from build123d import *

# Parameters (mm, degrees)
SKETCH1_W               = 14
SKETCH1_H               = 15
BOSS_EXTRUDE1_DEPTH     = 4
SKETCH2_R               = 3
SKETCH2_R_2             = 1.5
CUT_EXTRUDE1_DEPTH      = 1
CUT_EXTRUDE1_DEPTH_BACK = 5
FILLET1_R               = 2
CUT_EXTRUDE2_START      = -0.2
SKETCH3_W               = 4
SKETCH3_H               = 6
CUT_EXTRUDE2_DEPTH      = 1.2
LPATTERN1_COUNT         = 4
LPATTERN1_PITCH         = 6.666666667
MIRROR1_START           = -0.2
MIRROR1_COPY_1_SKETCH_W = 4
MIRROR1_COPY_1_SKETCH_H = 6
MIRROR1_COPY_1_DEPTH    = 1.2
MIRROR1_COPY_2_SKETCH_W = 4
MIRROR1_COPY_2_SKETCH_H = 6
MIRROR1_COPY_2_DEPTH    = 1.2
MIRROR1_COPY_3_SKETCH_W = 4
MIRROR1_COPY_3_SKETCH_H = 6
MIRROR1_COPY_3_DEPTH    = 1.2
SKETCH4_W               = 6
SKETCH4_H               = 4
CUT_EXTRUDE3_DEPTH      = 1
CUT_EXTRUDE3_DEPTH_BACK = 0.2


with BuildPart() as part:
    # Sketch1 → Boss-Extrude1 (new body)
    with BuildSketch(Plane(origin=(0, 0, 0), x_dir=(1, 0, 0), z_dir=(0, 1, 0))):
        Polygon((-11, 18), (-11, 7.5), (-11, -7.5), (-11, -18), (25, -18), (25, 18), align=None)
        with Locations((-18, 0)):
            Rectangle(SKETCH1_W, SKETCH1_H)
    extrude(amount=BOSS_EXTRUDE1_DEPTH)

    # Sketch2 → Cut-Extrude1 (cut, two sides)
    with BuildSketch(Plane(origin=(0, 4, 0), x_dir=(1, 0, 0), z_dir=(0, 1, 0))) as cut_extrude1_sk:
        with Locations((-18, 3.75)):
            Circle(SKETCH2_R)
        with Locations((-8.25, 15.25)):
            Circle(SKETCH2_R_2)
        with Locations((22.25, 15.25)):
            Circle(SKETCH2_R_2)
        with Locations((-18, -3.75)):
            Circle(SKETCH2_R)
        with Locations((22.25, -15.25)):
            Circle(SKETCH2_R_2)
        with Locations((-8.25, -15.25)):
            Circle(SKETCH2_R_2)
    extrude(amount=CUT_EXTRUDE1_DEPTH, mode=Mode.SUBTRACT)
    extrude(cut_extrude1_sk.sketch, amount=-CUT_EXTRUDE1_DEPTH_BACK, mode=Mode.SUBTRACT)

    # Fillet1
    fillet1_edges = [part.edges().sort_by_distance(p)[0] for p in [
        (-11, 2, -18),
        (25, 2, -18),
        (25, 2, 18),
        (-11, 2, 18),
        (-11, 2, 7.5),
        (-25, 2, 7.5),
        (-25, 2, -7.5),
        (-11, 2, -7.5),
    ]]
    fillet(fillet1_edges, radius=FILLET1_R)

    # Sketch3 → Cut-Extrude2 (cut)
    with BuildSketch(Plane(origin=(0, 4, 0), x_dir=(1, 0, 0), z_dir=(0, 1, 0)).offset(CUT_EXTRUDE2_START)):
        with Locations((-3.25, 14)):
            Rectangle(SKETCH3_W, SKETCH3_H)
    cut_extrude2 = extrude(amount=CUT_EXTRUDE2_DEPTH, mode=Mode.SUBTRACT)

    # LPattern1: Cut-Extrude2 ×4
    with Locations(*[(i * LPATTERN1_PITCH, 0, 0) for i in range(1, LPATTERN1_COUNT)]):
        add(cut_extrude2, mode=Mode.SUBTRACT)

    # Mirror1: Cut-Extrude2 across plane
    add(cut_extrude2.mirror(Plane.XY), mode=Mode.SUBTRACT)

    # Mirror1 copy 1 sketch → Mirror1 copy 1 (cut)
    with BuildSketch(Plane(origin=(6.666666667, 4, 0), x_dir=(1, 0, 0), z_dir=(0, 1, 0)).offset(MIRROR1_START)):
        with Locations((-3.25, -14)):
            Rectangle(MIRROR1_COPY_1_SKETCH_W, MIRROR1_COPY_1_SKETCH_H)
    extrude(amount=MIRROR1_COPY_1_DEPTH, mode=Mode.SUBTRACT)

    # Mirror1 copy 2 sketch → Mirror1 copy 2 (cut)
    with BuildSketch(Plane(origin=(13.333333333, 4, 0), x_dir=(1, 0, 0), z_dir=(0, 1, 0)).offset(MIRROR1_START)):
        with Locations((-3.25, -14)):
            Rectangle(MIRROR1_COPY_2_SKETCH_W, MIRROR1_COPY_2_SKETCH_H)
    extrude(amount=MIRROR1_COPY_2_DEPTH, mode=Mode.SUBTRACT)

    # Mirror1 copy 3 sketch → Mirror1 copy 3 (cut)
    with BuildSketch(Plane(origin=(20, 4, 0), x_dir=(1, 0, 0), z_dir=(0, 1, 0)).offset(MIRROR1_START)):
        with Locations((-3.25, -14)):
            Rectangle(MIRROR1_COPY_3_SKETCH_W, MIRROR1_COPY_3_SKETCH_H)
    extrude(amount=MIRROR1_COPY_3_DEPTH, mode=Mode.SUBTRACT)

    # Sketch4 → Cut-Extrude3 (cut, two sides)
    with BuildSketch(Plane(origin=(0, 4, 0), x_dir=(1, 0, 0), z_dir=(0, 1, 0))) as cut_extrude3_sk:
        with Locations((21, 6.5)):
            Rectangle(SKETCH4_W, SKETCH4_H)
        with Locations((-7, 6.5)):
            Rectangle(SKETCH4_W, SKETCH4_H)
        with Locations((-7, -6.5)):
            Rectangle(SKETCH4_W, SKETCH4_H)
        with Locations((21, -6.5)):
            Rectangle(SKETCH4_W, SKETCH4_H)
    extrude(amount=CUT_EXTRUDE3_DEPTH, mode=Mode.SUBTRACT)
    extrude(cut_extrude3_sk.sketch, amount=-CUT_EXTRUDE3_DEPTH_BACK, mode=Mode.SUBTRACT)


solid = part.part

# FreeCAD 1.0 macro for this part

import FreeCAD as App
import Part
import Sketcher
Q = App.Units.Quantity


def edges_at(feature, points):
    """Names of the edges that pass closest to the given points."""
    edges = feature.Shape.Edges
    near = lambda p: min(range(len(edges)), key=lambda i: edges[i].distToShape(Part.Vertex(*p))[0])
    return sorted({f"Edge{near(p) + 1}" for p in points})


def add_polygon(sketch, points):
    """Adds a closed chain of lines whose ends are joined by coincident constraints."""
    first, n = sketch.GeometryCount, len(points)
    for a, b in zip(points, points[1:] + points[:1]):
        sketch.addGeometry(Part.LineSegment(App.Vector(*a, 0), App.Vector(*b, 0)), False)
    for i in range(n):
        sketch.addConstraint(Sketcher.Constraint("Coincident", first + i, 2, first + (i + 1) % n, 1))

doc = App.newDocument("Part")
body = doc.addObject("PartDesign::Body", "Body")

sketch1 = body.newObject("Sketcher::SketchObject", "Sketch")
sketch1.AttachmentSupport = (doc.getObject("XZ_Plane"), [""])
sketch1.MapMode = "FlatFace"
add_polygon(sketch1, [(-11, -18), (-11, -8), (-25, -8), (-25, 8), (-11, 8), (-11, 18), (25, 18), (25, -18)])
sketch1.addConstraint(Sketcher.Constraint("Vertical", 0))
sketch1.addConstraint(Sketcher.Constraint("Horizontal", 1))
sketch1.addConstraint(Sketcher.Constraint("Vertical", 2))
sketch1.addConstraint(Sketcher.Constraint("Horizontal", 3))
sketch1.addConstraint(Sketcher.Constraint("Vertical", 4))
sketch1.addConstraint(Sketcher.Constraint("Horizontal", 5))
sketch1.addConstraint(Sketcher.Constraint("Vertical", 6))
sketch1.addConstraint(Sketcher.Constraint("Horizontal", 7))
sketch1.addConstraint(Sketcher.Constraint("Symmetric", 0, 2, 3, 2, -1))
sketch1.addConstraint(Sketcher.Constraint("Equal", 0, 4))
sketch1.addConstraint(Sketcher.Constraint("Equal", 7, 6))
sketch1.addConstraint(Sketcher.Constraint("DistanceX", 1, 2, 1, 1, Q("14 mm")))
sketch1.addConstraint(Sketcher.Constraint("DistanceX", 5, 1, 5, 2, Q("36 mm")))
sketch1.addConstraint(Sketcher.Constraint("DistanceY", 2, 1, 2, 2, Q("15 mm")))
sketch1.addConstraint(Sketcher.Constraint("DistanceX", 0, 2, -1, 1, Q("11 mm")))
pad1 = body.newObject("PartDesign::Pad", "Pad")
pad1.Profile = sketch1
pad1.Length = 4
pad1.Reversed = True

sketch2 = body.newObject("Sketcher::SketchObject", "Sketch001")
sketch2.AttachmentSupport = (doc.getObject("XZ_Plane"), [""])
sketch2.MapMode = "FlatFace"
sketch2.AttachmentOffset = App.Placement(App.Vector(0, 0, -4), App.Rotation())
sketch2.addGeometry(Part.Circle(App.Vector(-18, -3.8, 0), App.Vector(0, 0, 1), 3), False)
sketch2.addGeometry(Part.Circle(App.Vector(-8.2, -15.2, 0), App.Vector(0, 0, 1), 1.5), False)
sketch2.addGeometry(Part.Circle(App.Vector(22.2, -15.2, 0), App.Vector(0, 0, 1), 1.5), False)
sketch2.addGeometry(Part.Circle(App.Vector(-18, 3.8, 0), App.Vector(0, 0, 1), 3), False)
sketch2.addGeometry(Part.Circle(App.Vector(22.2, 15.2, 0), App.Vector(0, 0, 1), 1.5), False)
sketch2.addGeometry(Part.Circle(App.Vector(-8.2, 15.2, 0), App.Vector(0, 0, 1), 1.5), False)
sketch2.addConstraint(Sketcher.Constraint("Equal", 1, 2))
sketch2.addConstraint(Sketcher.Constraint("Equal", 0, 3))
sketch2.addConstraint(Sketcher.Constraint("Equal", 2, 4))
sketch2.addConstraint(Sketcher.Constraint("Equal", 4, 5))
sketch2.addConstraint(Sketcher.Constraint("Symmetric", 0, 3, 3, 3, -1))
sketch2.addConstraint(Sketcher.Constraint("Symmetric", 2, 3, 4, 3, -1))
sketch2.addConstraint(Sketcher.Constraint("Symmetric", 1, 3, 5, 3, -1))
sketch2.addConstraint(Sketcher.Constraint("Horizontal", 1, 3, 2, 3))
sketch2.addConstraint(Sketcher.Constraint("Diameter", 0, Q("6 mm")))
sketch2.addConstraint(Sketcher.Constraint("Diameter", 1, Q("3 mm")))
sketch2.addConstraint(Sketcher.Constraint("DistanceX", 0, 3, -1, 1, Q("18 mm")))
sketch2.addConstraint(Sketcher.Constraint("DistanceY", 1, 3, 3, 3, Q("19 mm")))
sketch2.addConstraint(Sketcher.Constraint("DistanceY", 1, 3, 0, 3, Q("11.5 mm")))
sketch2.addConstraint(Sketcher.Constraint("DistanceX", 1, 3, 2, 3, Q("30.5 mm")))
sketch2.addConstraint(Sketcher.Constraint("DistanceX", 1, 3, -1, 1, Q("8.25 mm")))
pocket1 = body.newObject("PartDesign::Pocket", "Pocket")
pocket1.Profile = sketch2
pocket1.Type = "ThroughAll"
pocket1.Midplane = True
doc.recompute()

fillet = body.newObject("PartDesign::Fillet", "Fillet")
fillet.Base = (pocket1, edges_at(pocket1, [
    (-11, 2, -18),
    (25, 2, -18),
    (25, 2, 18),
    (-11, 2, 18),
    (-11, 2, 7.5),
    (-25, 2, 7.5),
    (-25, 2, -7.5),
    (-11, 2, -7.5),
]))
fillet.Radius = 2

sketch3 = body.newObject("Sketcher::SketchObject", "Sketch002")
sketch3.AttachmentSupport = (doc.getObject("XZ_Plane"), [""])
sketch3.MapMode = "FlatFace"
sketch3.AttachmentOffset = App.Placement(App.Vector(0, 0, -3.8), App.Rotation())
add_polygon(sketch3, [(-5.2, -17), (-5.2, -11), (-1.2, -11), (-1.2, -17)])
sketch3.addConstraint(Sketcher.Constraint("Vertical", 0))
sketch3.addConstraint(Sketcher.Constraint("Horizontal", 1))
sketch3.addConstraint(Sketcher.Constraint("Vertical", 2))
sketch3.addConstraint(Sketcher.Constraint("Horizontal", 3))
sketch3.addConstraint(Sketcher.Constraint("DistanceX", 1, 1, 1, 2, Q("4 mm")))
sketch3.addConstraint(Sketcher.Constraint("DistanceY", 0, 1, 0, 2, Q("6 mm")))
sketch3.addConstraint(Sketcher.Constraint("DistanceY", 0, 2, -1, 1, Q("11 mm")))
sketch3.addConstraint(Sketcher.Constraint("DistanceX", 0, 2, -1, 1, Q("5.25 mm")))
pocket2 = body.newObject("PartDesign::Pocket", "Pocket001")
pocket2.Profile = sketch3
pocket2.Length = 1.2
doc.recompute()

linearpattern = body.newObject("PartDesign::LinearPattern", "LinearPattern")
linearpattern.Originals = [pocket2]
linearpattern.Direction = (doc.getObject("X_Axis"), [""])
linearpattern.Mode = "offset"
linearpattern.Offset = 6.666667
linearpattern.Occurrences = 4
body.Tip = linearpattern
doc.recompute()

mirrored = body.newObject("PartDesign::Mirrored", "Mirrored")
mirrored.Originals = [pocket2]
mirrored.MirrorPlane = (doc.getObject("XY_Plane"), [""])
body.Tip = mirrored

sketch4 = body.newObject("Sketcher::SketchObject", "Sketch003")
sketch4.AttachmentSupport = (doc.getObject("XZ_Plane"), [""])
sketch4.MapMode = "FlatFace"
sketch4.AttachmentOffset = App.Placement(App.Vector(0, 0, -3.8), App.Rotation())
add_polygon(sketch4, [(1.4, 11), (1.4, 17), (5.4, 17), (5.4, 11)])
sketch4.addConstraint(Sketcher.Constraint("Vertical", 0))
sketch4.addConstraint(Sketcher.Constraint("Horizontal", 1))
sketch4.addConstraint(Sketcher.Constraint("Vertical", 2))
sketch4.addConstraint(Sketcher.Constraint("Horizontal", 3))
sketch4.addConstraint(Sketcher.Constraint("DistanceX", 1, 1, 1, 2, Q("4 mm")))
sketch4.addConstraint(Sketcher.Constraint("DistanceY", 0, 1, 0, 2, Q("6 mm")))
sketch4.addConstraint(Sketcher.Constraint("DistanceY", -1, 1, 0, 2, Q("17 mm")))
sketch4.addConstraint(Sketcher.Constraint("DistanceX", -1, 1, 0, 2, Q("1.416667 mm")))
pocket3 = body.newObject("PartDesign::Pocket", "Pocket002")
pocket3.Profile = sketch4
pocket3.Length = 1.2

sketch5 = body.newObject("Sketcher::SketchObject", "Sketch004")
sketch5.AttachmentSupport = (doc.getObject("XZ_Plane"), [""])
sketch5.MapMode = "FlatFace"
sketch5.AttachmentOffset = App.Placement(App.Vector(0, 0, -3.8), App.Rotation())
add_polygon(sketch5, [(8.1, 11), (8.1, 17), (12.1, 17), (12.1, 11)])
sketch5.addConstraint(Sketcher.Constraint("Vertical", 0))
sketch5.addConstraint(Sketcher.Constraint("Horizontal", 1))
sketch5.addConstraint(Sketcher.Constraint("Vertical", 2))
sketch5.addConstraint(Sketcher.Constraint("Horizontal", 3))
sketch5.addConstraint(Sketcher.Constraint("DistanceX", 1, 1, 1, 2, Q("4 mm")))
sketch5.addConstraint(Sketcher.Constraint("DistanceY", 0, 1, 0, 2, Q("6 mm")))
sketch5.addConstraint(Sketcher.Constraint("DistanceY", -1, 1, 0, 2, Q("17 mm")))
sketch5.addConstraint(Sketcher.Constraint("DistanceX", -1, 1, 0, 2, Q("8.083333 mm")))
pocket4 = body.newObject("PartDesign::Pocket", "Pocket003")
pocket4.Profile = sketch5
pocket4.Length = 1.2

sketch6 = body.newObject("Sketcher::SketchObject", "Sketch005")
sketch6.AttachmentSupport = (doc.getObject("XZ_Plane"), [""])
sketch6.MapMode = "FlatFace"
sketch6.AttachmentOffset = App.Placement(App.Vector(0, 0, -3.8), App.Rotation())
add_polygon(sketch6, [(14.8, 11), (14.8, 17), (18.8, 17), (18.8, 11)])
sketch6.addConstraint(Sketcher.Constraint("Vertical", 0))
sketch6.addConstraint(Sketcher.Constraint("Horizontal", 1))
sketch6.addConstraint(Sketcher.Constraint("Vertical", 2))
sketch6.addConstraint(Sketcher.Constraint("Horizontal", 3))
sketch6.addConstraint(Sketcher.Constraint("DistanceX", 1, 1, 1, 2, Q("4 mm")))
sketch6.addConstraint(Sketcher.Constraint("DistanceY", 0, 1, 0, 2, Q("6 mm")))
sketch6.addConstraint(Sketcher.Constraint("DistanceY", -1, 1, 0, 2, Q("17 mm")))
sketch6.addConstraint(Sketcher.Constraint("DistanceX", -1, 1, 0, 2, Q("14.75 mm")))
pocket5 = body.newObject("PartDesign::Pocket", "Pocket004")
pocket5.Profile = sketch6
pocket5.Length = 1.2

sketch7 = body.newObject("Sketcher::SketchObject", "Sketch006")
sketch7.AttachmentSupport = (doc.getObject("XZ_Plane"), [""])
sketch7.MapMode = "FlatFace"
sketch7.AttachmentOffset = App.Placement(App.Vector(0, 0, -4), App.Rotation())
add_polygon(sketch7, [(18, -8.5), (18, -4.5), (24, -4.5), (24, -8.5)])
add_polygon(sketch7, [(-10, -8.5), (-10, -4.5), (-4, -4.5), (-4, -8.5)])
add_polygon(sketch7, [(-10, 4.5), (-10, 8.5), (-4, 8.5), (-4, 4.5)])
add_polygon(sketch7, [(18, 4.5), (18, 8.5), (24, 8.5), (24, 4.5)])
sketch7.addConstraint(Sketcher.Constraint("Vertical", 0))
sketch7.addConstraint(Sketcher.Constraint("Horizontal", 1))
sketch7.addConstraint(Sketcher.Constraint("Vertical", 2))
sketch7.addConstraint(Sketcher.Constraint("Horizontal", 3))
sketch7.addConstraint(Sketcher.Constraint("Vertical", 4))
sketch7.addConstraint(Sketcher.Constraint("Horizontal", 5))
sketch7.addConstraint(Sketcher.Constraint("Vertical", 6))
sketch7.addConstraint(Sketcher.Constraint("Horizontal", 7))
sketch7.addConstraint(Sketcher.Constraint("Vertical", 8))
sketch7.addConstraint(Sketcher.Constraint("Horizontal", 9))
sketch7.addConstraint(Sketcher.Constraint("Vertical", 10))
sketch7.addConstraint(Sketcher.Constraint("Horizontal", 11))
sketch7.addConstraint(Sketcher.Constraint("Vertical", 12))
sketch7.addConstraint(Sketcher.Constraint("Horizontal", 13))
sketch7.addConstraint(Sketcher.Constraint("Vertical", 14))
sketch7.addConstraint(Sketcher.Constraint("Horizontal", 15))
sketch7.addConstraint(Sketcher.Constraint("Symmetric", 7, 2, 8, 2, -1))
sketch7.addConstraint(Sketcher.Constraint("Symmetric", 5, 2, 10, 2, -1))
sketch7.addConstraint(Sketcher.Constraint("Symmetric", 3, 2, 12, 2, -1))
sketch7.addConstraint(Sketcher.Constraint("Symmetric", 1, 2, 14, 2, -1))
sketch7.addConstraint(Sketcher.Constraint("Horizontal", 1, 2, 4, 2))
sketch7.addConstraint(Sketcher.Constraint("Horizontal", 3, 2, 6, 2))
sketch7.addConstraint(Sketcher.Constraint("Equal", 3, 5))
sketch7.addConstraint(Sketcher.Constraint("DistanceX", 1, 1, 1, 2, Q("6 mm")))
sketch7.addConstraint(Sketcher.Constraint("DistanceY", 0, 1, 0, 2, Q("4 mm")))
sketch7.addConstraint(Sketcher.Constraint("DistanceX", -1, 1, 0, 2, Q("18 mm")))
sketch7.addConstraint(Sketcher.Constraint("DistanceX", 4, 2, -1, 1, Q("10 mm")))
sketch7.addConstraint(Sketcher.Constraint("DistanceY", 4, 2, 8, 2, Q("13 mm")))
pocket6 = body.newObject("PartDesign::Pocket", "Pocket005")
pocket6.Profile = sketch7
pocket6.Type = "TwoLengths"
pocket6.Length = 1
pocket6.Length2 = 0.2

doc.recompute()
